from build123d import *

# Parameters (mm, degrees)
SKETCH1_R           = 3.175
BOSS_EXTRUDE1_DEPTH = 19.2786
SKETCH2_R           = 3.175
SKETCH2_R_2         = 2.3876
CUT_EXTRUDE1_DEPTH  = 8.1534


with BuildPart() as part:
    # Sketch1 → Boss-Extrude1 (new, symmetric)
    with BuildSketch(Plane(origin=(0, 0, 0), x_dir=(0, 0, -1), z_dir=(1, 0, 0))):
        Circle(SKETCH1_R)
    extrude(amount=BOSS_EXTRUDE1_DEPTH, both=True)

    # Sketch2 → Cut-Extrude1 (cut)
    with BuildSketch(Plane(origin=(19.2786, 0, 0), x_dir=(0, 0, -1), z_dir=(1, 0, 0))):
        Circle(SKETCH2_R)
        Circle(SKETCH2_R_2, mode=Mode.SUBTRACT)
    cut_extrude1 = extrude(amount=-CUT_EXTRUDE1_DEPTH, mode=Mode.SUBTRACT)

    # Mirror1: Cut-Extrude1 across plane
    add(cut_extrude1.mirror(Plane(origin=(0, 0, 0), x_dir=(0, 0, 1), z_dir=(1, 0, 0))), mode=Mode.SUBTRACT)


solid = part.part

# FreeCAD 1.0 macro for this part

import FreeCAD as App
import Part
import Sketcher

V = App.Vector
Q = App.Units.Quantity

doc = App.newDocument("Part")
body = doc.addObject("PartDesign::Body", "Body")

# Sketch on YZ plane
sketch1 = doc.addObject("Sketcher::SketchObject", "Sketch")
body.addObject(sketch1)
sketch1.AttachmentSupport = (doc.YZ_Plane, [""])
sketch1.MapMode = "FlatFace"
sketch1.addGeometry(Part.Circle(V(0, 0, 0), V(0, 0, 1), 3.175), False)
sketch1.addConstraint(Sketcher.Constraint("Coincident", 0, 3, -1, 1))
sketch1.addConstraint(Sketcher.Constraint("Diameter", 0, Q("0.25 in")))
pad1 = doc.addObject("PartDesign::Pad", "Pad")
body.addObject(pad1)
pad1.Profile = sketch1
pad1.Length = Q("1.518 in")
pad1.Midplane = True

# Sketch on YZ plane
sketch2 = doc.addObject("Sketcher::SketchObject", "Sketch001")
body.addObject(sketch2)
sketch2.AttachmentSupport = (doc.YZ_Plane, [""])
sketch2.MapMode = "FlatFace"
sketch2.AttachmentOffset = App.Placement(V(0, 0, 0.759 * 25.4), App.Rotation())
sketch2.addGeometry(Part.Circle(V(0, 0, 0), V(0, 0, 1), 3.175), False)
sketch2.addGeometry(Part.Circle(V(0, 0, 0), V(0, 0, 1), 2.3876), False)
sketch2.addConstraint(Sketcher.Constraint("Coincident", 0, 3, -1, 1))
sketch2.addConstraint(Sketcher.Constraint("Coincident", 1, 3, -1, 1))
sketch2.addConstraint(Sketcher.Constraint("Diameter", 0, Q("0.25 in")))
sketch2.addConstraint(Sketcher.Constraint("Diameter", 1, Q("0.188 in")))
pocket1 = doc.addObject("PartDesign::Pocket", "Pocket")
body.addObject(pocket1)
pocket1.Profile = sketch2
pocket1.Length = Q("0.321 in")
doc.recompute()

mirrored = doc.addObject("PartDesign::Mirrored", "Mirrored")
body.addObject(mirrored)
mirrored.Originals = [pocket1]
mirrored.MirrorPlane = (doc.YZ_Plane, [""])
body.Tip = mirrored

doc.recompute()
